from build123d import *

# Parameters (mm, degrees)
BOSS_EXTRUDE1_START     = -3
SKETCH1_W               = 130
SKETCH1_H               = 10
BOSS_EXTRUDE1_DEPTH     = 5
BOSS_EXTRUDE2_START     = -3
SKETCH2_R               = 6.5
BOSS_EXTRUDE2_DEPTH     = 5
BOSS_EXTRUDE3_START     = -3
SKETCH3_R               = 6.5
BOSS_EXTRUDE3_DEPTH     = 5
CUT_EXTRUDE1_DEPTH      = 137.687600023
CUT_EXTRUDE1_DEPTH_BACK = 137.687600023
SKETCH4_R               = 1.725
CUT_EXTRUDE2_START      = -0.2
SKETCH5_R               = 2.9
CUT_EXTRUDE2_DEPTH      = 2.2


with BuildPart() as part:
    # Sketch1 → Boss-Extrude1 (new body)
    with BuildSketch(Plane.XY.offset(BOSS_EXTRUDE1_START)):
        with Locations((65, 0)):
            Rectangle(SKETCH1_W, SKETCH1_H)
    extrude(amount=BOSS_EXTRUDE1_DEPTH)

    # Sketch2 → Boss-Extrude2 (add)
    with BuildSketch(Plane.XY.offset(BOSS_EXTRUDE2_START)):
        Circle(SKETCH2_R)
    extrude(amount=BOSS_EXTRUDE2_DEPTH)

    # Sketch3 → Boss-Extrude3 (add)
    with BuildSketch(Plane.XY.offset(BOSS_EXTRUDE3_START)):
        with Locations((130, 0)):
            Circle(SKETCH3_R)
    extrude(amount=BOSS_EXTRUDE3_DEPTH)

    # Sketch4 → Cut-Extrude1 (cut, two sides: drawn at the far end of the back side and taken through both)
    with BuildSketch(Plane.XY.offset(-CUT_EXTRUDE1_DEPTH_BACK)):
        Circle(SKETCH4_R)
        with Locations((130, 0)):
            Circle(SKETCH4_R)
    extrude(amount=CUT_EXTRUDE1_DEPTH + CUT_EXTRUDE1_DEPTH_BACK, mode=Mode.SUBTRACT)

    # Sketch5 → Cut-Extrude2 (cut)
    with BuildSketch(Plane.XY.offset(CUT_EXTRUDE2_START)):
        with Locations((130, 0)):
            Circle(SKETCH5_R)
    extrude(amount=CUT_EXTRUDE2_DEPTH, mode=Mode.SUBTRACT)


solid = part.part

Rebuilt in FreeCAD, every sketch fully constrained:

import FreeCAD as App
import Part
import Sketcher
Q = App.Units.Quantity

doc = App.newDocument("Part")
body = doc.addObject("PartDesign::Body", "Body")

sketch1 = body.newObject("Sketcher::SketchObject", "Sketch")
sketch1.AttachmentSupport = (doc.getObject("XY_Plane"), [""])
sketch1.MapMode = "FlatFace"
sketch1.AttachmentOffset = App.Placement(App.Vector(0, 0, -3), App.Rotation())
sketch1.addGeometry(Part.LineSegment(App.Vector(0, 5, 0), App.Vector(0, -5, 0)), False)
sketch1.addGeometry(Part.LineSegment(App.Vector(0, -5, 0), App.Vector(130, -5, 0)), False)
sketch1.addGeometry(Part.LineSegment(App.Vector(130, -5, 0), App.Vector(130, 5, 0)), False)
sketch1.addGeometry(Part.LineSegment(App.Vector(130, 5, 0), App.Vector(0, 5, 0)), False)
sketch1.addConstraint(Sketcher.Constraint("Coincident", 0, 2, 1, 1))
sketch1.addConstraint(Sketcher.Constraint("Coincident", 1, 2, 2, 1))
sketch1.addConstraint(Sketcher.Constraint("Coincident", 2, 2, 3, 1))
sketch1.addConstraint(Sketcher.Constraint("Coincident", 3, 2, 0, 1))
sketch1.addConstraint(Sketcher.Constraint("Vertical", 0))
sketch1.addConstraint(Sketcher.Constraint("Horizontal", 1))
sketch1.addConstraint(Sketcher.Constraint("Vertical", 2))
sketch1.addConstraint(Sketcher.Constraint("Horizontal", 3))
sketch1.addConstraint(Sketcher.Constraint("Symmetric", 0, 2, 3, 2, -1, 1))
sketch1.addConstraint(Sketcher.Constraint("DistanceX", 1, 1, 1, 2, Q("130 mm")))
sketch1.addConstraint(Sketcher.Constraint("DistanceY", 0, 2, 0, 1, Q("10 mm")))
pad1 = body.newObject("PartDesign::Pad", "Pad")
pad1.Profile = sketch1
pad1.Length = 5

sketch2 = body.newObject("Sketcher::SketchObject", "Sketch001")
sketch2.AttachmentSupport = (doc.getObject("XY_Plane"), [""])
sketch2.MapMode = "FlatFace"
sketch2.AttachmentOffset = App.Placement(App.Vector(0, 0, -3), App.Rotation())
sketch2.addGeometry(Part.Circle(App.Vector(0, 0, 0), App.Vector(0, 0, 1), 6.5), False)
sketch2.addConstraint(Sketcher.Constraint("Coincident", 0, 3, -1, 1))
sketch2.addConstraint(Sketcher.Constraint("Diameter", 0, Q("13 mm")))
pad2 = body.newObject("PartDesign::Pad", "Pad001")
pad2.Profile = sketch2
pad2.Length = 5

sketch3 = body.newObject("Sketcher::SketchObject", "Sketch002")
sketch3.AttachmentSupport = (doc.getObject("XY_Plane"), [""])
sketch3.MapMode = "FlatFace"
sketch3.AttachmentOffset = App.Placement(App.Vector(0, 0, -3), App.Rotation())
sketch3.addGeometry(Part.Circle(App.Vector(130, 0, 0), App.Vector(0, 0, 1), 6.5), False)
sketch3.addConstraint(Sketcher.Constraint("PointOnObject", 0, 3, -1))
sketch3.addConstraint(Sketcher.Constraint("Diameter", 0, Q("13 mm")))
sketch3.addConstraint(Sketcher.Constraint("DistanceX", -1, 1, 0, 3, Q("130 mm")))
pad3 = body.newObject("PartDesign::Pad", "Pad002")
pad3.Profile = sketch3
pad3.Length = 5

sketch4 = body.newObject("Sketcher::SketchObject", "Sketch003")
sketch4.AttachmentSupport = (doc.getObject("XY_Plane"), [""])
sketch4.MapMode = "FlatFace"
sketch4.addGeometry(Part.Circle(App.Vector(0, 0, 0), App.Vector(0, 0, 1), 1.725), False)
sketch4.addGeometry(Part.Circle(App.Vector(130, 0, 0), App.Vector(0, 0, 1), 1.725), False)
sketch4.addConstraint(Sketcher.Constraint("Coincident", 0, 3, -1, 1))
sketch4.addConstraint(Sketcher.Constraint("Equal", 0, 1))
sketch4.addConstraint(Sketcher.Constraint("PointOnObject", 1, 3, -1))
sketch4.addConstraint(Sketcher.Constraint("Diameter", 0, Q("3.45 mm")))
sketch4.addConstraint(Sketcher.Constraint("DistanceX", -1, 1, 1, 3, Q("130 mm")))
pocket1 = body.newObject("PartDesign::Pocket", "Pocket")
pocket1.Profile = sketch4
pocket1.Type = "ThroughAll"
pocket1.Midplane = True

sketch5 = body.newObject("Sketcher::SketchObject", "Sketch004")
sketch5.AttachmentSupport = (doc.getObject("XY_Plane"), [""])
sketch5.MapMode = "FlatFace"
sketch5.AttachmentOffset = App.Placement(App.Vector(0, 0, -0.2), App.Rotation())
sketch5.addGeometry(Part.Circle(App.Vector(130, 0, 0), App.Vector(0, 0, 1), 2.9), False)
sketch5.addConstraint(Sketcher.Constraint("PointOnObject", 0, 3, -1))
sketch5.addConstraint(Sketcher.Constraint("Diameter", 0, Q("5.8 mm")))
sketch5.addConstraint(Sketcher.Constraint("DistanceX", -1, 1, 0, 3, Q("130 mm")))
pocket2 = body.newObject("PartDesign::Pocket", "Pocket001")
pocket2.Profile = sketch5
pocket2.Length = 2.2
pocket2.Reversed = True

doc.recompute()
